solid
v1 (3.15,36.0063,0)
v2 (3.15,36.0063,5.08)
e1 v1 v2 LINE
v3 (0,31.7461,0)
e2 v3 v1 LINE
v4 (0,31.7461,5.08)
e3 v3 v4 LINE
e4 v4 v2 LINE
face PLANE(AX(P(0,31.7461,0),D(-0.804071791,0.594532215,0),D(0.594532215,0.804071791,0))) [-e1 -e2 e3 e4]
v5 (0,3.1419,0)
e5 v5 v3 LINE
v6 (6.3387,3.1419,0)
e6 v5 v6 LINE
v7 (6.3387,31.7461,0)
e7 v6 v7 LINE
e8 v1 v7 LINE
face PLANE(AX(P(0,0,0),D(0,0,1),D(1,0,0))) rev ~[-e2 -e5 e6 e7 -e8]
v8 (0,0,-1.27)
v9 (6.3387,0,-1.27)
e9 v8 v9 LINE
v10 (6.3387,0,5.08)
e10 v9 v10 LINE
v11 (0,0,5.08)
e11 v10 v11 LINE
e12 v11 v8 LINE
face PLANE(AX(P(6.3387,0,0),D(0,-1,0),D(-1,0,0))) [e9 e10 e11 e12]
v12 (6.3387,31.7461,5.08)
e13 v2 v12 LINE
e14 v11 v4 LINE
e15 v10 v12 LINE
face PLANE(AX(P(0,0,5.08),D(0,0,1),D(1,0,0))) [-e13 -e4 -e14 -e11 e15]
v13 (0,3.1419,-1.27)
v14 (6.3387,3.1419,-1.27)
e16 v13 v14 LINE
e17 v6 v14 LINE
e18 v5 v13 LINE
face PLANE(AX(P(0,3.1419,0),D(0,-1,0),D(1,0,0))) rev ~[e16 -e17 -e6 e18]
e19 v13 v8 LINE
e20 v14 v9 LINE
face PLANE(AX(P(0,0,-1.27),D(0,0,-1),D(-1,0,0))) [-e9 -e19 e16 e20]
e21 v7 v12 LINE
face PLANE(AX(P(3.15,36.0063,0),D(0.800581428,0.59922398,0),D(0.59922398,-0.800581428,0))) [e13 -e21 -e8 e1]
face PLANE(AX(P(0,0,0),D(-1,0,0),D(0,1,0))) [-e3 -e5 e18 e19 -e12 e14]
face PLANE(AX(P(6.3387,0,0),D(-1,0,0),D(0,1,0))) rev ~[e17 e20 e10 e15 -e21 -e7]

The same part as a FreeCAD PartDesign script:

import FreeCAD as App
import Part
import Sketcher
from FreeCAD import Vector
Q = App.Units.Quantity

doc = App.newDocument("Part")
params = doc.addObject("Spreadsheet::Sheet", "Params")
for row, (alias, value) in enumerate([
    ("pad1_length", "0.2 in"),
    ("pad2_length", "0.05 in"),
], start=1):
    params.set(f"A{row}", alias)
    params.set(f"B{row}", "=" + value)
    params.setAlias(f"B{row}", alias)

body = doc.addObject("PartDesign::Body", "Body")

# Sketch on XY plane
sketch1 = doc.addObject("Sketcher::SketchObject", "Sketch")
body.addObject(sketch1)
sketch1.AttachmentSupport = (doc.XY_Plane, [""])
sketch1.MapMode = "FlatFace"
sketch1.addGeometry([
    Part.LineSegment(Vector(0, 0, 0), Vector(6, 0, 0)),  # 0
    Part.LineSegment(Vector(6, 0, 0), Vector(6, 32, 0)),  # 1
    Part.LineSegment(Vector(6, 32, 0), Vector(3, 36, 0)),  # 2
    Part.LineSegment(Vector(3, 36, 0), Vector(0, 32, 0)),  # 3
    Part.LineSegment(Vector(0, 32, 0), Vector(0, 0, 0)),  # 4
], False)
sketch1.addConstraint([
    Sketcher.Constraint("Coincident", 0, 2, 1, 1),
    Sketcher.Constraint("Coincident", 1, 2, 2, 1),
    Sketcher.Constraint("Coincident", 2, 2, 3, 1),
    Sketcher.Constraint("Coincident", 3, 2, 4, 1),
    Sketcher.Constraint("Coincident", 4, 2, 0, 1),
    Sketcher.Constraint("Horizontal", 0),
    Sketcher.Constraint("Vertical", 1),
    Sketcher.Constraint("Vertical", 4),
    Sketcher.Constraint("Coincident", 4, 2, -1, 1),
    Sketcher.Constraint("Horizontal", 1, 2, 3, 2),
    Sketcher.Constraint("Angle", 3, Q("-126.4793 deg")),
    Sketcher.Constraint("Distance", 2, Q("0.2095 in")),
    Sketcher.Constraint("Distance", 3, Q("0.2086 in")),
    Sketcher.Constraint("DistanceY", 1, 1, 1, 2, Q("31.746 mm")),
])
pad1 = doc.addObject("PartDesign::Pad", "Pad")
body.addObject(pad1)
pad1.Profile = sketch1
pad1.setExpression("Length", "Params.pad1_length")

# Sketch on XY plane
sketch2 = doc.addObject("Sketcher::SketchObject", "Sketch001")
body.addObject(sketch2)
sketch2.AttachmentSupport = (doc.XY_Plane, [""])
sketch2.MapMode = "FlatFace"
sketch2.addGeometry([
    Part.LineSegment(Vector(6.3, 0, 0), Vector(0, 0, 0)),
    Part.LineSegment(Vector(0, 0, 0), Vector(0, 3.1, 0)),
    Part.LineSegment(Vector(0, 3.1, 0), Vector(6.3, 3.1, 0)),
    Part.LineSegment(Vector(6.3, 3.1, 0), Vector(6.3, 0, 0)),
], False)
sketch2.addConstraint([
    Sketcher.Constraint("Coincident", 0, 2, 1, 1),
    Sketcher.Constraint("Coincident", 1, 2, 2, 1),
    Sketcher.Constraint("Coincident", 2, 2, 3, 1),
    Sketcher.Constraint("Coincident", 3, 2, 0, 1),
    Sketcher.Constraint("Horizontal", 0),
    Sketcher.Constraint("Vertical", 1),
    Sketcher.Constraint("Horizontal", 2),
    Sketcher.Constraint("Vertical", 3),
    Sketcher.Constraint("Coincident", 0, 2, -1, 1),
    Sketcher.Constraint("DistanceY", 1, 1, 1, 2, Q("0.1237 in")),
    Sketcher.Constraint("DistanceX", 0, 2, 0, 1, Q("6.3387 mm")),
])
pad2 = doc.addObject("PartDesign::Pad", "Pad001")
body.addObject(pad2)
pad2.Profile = sketch2
pad2.setExpression("Length", "Params.pad2_length")
pad2.Reversed = True

doc.recompute()
